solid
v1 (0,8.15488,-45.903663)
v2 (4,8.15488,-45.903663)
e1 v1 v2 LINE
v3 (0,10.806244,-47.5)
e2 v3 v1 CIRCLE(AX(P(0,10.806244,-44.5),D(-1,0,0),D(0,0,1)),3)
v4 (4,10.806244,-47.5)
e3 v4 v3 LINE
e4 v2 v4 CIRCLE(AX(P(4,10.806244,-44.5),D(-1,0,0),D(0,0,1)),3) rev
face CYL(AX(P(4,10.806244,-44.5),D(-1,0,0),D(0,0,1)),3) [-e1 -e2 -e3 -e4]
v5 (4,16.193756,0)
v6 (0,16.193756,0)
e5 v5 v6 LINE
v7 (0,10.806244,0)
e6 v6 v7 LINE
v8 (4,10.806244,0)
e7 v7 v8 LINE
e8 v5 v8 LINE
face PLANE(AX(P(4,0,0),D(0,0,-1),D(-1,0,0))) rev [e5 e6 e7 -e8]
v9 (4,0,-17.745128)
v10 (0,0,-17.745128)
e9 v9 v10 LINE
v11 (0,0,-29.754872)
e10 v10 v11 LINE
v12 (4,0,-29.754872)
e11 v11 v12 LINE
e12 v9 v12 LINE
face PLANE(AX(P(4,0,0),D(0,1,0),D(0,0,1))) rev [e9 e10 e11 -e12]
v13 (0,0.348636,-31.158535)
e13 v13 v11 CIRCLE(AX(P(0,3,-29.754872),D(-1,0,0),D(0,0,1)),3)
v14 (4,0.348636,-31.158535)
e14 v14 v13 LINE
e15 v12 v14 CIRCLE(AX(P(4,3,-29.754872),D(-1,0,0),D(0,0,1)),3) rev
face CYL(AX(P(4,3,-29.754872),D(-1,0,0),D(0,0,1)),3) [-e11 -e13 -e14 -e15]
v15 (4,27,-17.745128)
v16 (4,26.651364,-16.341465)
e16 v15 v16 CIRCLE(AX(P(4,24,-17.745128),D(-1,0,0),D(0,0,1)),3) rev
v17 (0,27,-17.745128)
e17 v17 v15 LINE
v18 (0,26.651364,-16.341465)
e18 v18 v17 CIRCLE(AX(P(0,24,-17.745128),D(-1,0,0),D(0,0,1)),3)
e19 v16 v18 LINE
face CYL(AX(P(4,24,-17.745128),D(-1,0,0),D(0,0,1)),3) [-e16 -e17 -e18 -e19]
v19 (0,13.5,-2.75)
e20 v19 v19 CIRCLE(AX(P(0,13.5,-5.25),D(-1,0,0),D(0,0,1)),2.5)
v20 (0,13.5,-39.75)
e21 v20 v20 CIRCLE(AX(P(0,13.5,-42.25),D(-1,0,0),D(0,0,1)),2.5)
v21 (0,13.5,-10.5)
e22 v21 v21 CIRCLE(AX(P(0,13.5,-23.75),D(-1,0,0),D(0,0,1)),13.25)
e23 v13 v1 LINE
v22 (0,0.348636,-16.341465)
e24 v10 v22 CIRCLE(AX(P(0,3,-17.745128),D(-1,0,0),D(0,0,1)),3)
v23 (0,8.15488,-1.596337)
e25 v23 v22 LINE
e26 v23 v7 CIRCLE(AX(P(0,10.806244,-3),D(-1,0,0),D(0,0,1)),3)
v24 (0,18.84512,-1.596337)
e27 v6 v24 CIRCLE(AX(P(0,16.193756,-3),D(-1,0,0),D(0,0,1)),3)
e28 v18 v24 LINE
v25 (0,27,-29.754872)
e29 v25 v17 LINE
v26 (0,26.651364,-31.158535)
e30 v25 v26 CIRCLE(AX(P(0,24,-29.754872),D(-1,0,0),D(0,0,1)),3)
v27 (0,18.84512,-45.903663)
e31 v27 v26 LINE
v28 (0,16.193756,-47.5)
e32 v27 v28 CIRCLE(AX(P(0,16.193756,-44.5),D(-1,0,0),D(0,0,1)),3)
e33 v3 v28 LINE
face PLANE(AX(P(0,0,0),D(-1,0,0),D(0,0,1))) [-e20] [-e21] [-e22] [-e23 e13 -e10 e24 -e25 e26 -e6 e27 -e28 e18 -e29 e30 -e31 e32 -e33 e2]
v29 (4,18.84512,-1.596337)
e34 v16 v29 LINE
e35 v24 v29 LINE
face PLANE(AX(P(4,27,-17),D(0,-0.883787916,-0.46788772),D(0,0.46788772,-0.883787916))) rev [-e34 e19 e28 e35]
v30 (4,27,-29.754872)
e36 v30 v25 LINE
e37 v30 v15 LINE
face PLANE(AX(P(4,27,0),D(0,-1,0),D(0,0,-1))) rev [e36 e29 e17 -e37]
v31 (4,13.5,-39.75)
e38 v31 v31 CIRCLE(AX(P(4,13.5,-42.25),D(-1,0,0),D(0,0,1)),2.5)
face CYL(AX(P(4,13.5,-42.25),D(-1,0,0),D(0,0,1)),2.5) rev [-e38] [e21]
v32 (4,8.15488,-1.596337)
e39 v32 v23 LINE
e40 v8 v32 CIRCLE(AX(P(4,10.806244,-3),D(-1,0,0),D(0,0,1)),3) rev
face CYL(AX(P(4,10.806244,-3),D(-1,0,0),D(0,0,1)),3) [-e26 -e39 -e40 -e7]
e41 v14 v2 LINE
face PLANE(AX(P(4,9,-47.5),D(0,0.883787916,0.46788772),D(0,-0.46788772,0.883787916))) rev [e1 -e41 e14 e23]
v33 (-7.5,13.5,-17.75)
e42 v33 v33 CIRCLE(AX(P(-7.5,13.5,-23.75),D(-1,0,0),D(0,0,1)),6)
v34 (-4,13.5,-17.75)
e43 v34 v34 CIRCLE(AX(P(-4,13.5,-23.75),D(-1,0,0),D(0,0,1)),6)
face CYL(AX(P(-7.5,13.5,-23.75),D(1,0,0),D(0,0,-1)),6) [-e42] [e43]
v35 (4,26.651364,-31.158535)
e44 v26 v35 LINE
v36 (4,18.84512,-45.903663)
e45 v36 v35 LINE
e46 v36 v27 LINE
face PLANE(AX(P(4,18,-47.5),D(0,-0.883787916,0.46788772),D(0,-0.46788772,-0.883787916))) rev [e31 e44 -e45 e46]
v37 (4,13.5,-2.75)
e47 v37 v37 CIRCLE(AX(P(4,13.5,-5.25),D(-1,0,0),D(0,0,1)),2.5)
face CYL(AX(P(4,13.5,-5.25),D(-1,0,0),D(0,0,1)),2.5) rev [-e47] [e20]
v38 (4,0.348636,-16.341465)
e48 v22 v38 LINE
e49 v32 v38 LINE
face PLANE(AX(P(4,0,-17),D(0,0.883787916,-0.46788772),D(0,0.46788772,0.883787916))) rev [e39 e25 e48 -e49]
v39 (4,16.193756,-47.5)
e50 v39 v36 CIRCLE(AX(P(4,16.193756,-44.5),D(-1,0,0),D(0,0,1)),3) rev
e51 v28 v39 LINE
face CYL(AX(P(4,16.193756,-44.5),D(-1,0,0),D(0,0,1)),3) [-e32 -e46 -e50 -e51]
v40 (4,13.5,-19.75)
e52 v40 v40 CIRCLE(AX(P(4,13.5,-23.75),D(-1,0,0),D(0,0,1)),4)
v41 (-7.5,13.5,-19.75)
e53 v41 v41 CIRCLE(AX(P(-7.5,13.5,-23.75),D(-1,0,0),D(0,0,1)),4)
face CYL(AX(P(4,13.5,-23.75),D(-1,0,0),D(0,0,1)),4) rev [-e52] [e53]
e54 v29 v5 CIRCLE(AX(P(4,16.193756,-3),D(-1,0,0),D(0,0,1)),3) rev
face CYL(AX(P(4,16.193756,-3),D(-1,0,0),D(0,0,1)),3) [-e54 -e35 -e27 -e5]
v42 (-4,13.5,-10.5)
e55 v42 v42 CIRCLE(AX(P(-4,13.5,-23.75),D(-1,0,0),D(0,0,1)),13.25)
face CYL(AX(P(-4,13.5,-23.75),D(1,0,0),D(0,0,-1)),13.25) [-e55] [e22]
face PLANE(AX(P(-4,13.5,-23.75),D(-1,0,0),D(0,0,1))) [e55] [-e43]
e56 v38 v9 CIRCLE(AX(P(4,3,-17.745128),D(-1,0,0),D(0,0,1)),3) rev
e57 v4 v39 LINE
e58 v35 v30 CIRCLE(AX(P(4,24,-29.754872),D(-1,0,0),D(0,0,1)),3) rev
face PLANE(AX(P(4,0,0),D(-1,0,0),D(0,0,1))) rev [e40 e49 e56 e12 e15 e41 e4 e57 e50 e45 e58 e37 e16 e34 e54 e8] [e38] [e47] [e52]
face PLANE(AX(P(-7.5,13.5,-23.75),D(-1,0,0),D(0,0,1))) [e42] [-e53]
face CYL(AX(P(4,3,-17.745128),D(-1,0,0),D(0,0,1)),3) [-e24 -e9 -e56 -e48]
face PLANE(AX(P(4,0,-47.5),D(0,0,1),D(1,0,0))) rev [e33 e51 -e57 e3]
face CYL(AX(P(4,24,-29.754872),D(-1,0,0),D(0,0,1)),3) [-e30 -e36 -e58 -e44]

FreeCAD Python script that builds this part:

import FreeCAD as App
import Part
import Sketcher


def edges_at(feature, points):
    """Names of the edges that pass closest to the given points."""
    edges = feature.Shape.Edges
    near = lambda p: min(range(len(edges)), key=lambda i: edges[i].distToShape(Part.Vertex(*p))[0])
    return sorted({f"Edge{near(p) + 1}" for p in points})

doc = App.newDocument("Part")
params = doc.addObject("Spreadsheet::Sheet", "Params")
for row, (alias, value) in enumerate([
    ("sketch1_width", "27 mm"),
    ("sketch1_height", "47.5 mm"),
    ("pad1_length", "4 mm"),
    ("sketch2_diameter", "26.5 mm"),
    ("pad2_length", "4 mm"),
    ("sketch3_diameter", "12 mm"),
    ("pad3_length", "3.5 mm"),
    ("sketch4_diameter", "8 mm"),
    ("sketch5_diameter", "5 mm"),
    ("sketch6_width", "9 mm"),
    ("sketch6_height", "17 mm"),
    ("fillet_radius", "3 mm"),
], start=1):
    params.set(f"A{row}", alias)
    params.set(f"B{row}", "=" + value)
    params.setAlias(f"B{row}", alias)

body = doc.addObject("PartDesign::Body", "Body")

# Sketch on YZ plane
sketch1 = body.newObject("Sketcher::SketchObject", "Sketch")
sketch1.AttachmentSupport = (doc.getObject("YZ_Plane"), [""])
sketch1.MapMode = "FlatFace"
sketch1.addGeometry(Part.LineSegment(App.Vector(27, 0, 0), App.Vector(0, 0, 0)), False)
sketch1.addGeometry(Part.LineSegment(App.Vector(0, 0, 0), App.Vector(0, -48, 0)), False)
sketch1.addGeometry(Part.LineSegment(App.Vector(0, -48, 0), App.Vector(27, -48, 0)), False)
sketch1.addGeometry(Part.LineSegment(App.Vector(27, -48, 0), App.Vector(27, 0, 0)), False)
sketch1.addConstraint(Sketcher.Constraint("Coincident", 0, 2, 1, 1))
sketch1.addConstraint(Sketcher.Constraint("Coincident", 1, 2, 2, 1))
sketch1.addConstraint(Sketcher.Constraint("Coincident", 2, 2, 3, 1))
sketch1.addConstraint(Sketcher.Constraint("Coincident", 3, 2, 0, 1))
sketch1.addConstraint(Sketcher.Constraint("Horizontal", 0))
sketch1.addConstraint(Sketcher.Constraint("Vertical", 1))
sketch1.addConstraint(Sketcher.Constraint("Horizontal", 2))
sketch1.addConstraint(Sketcher.Constraint("Vertical", 3))
sketch1.addConstraint(Sketcher.Constraint("Coincident", 0, 2, -1, 1))
sketch1.addConstraint(Sketcher.Constraint("DistanceX", 0, 2, 0, 1, 27.0))
sketch1.addConstraint(Sketcher.Constraint("DistanceY", 1, 2, 1, 1, 47.5))
sketch1.setExpression("Constraints[9]", "Params.sketch1_width")
sketch1.setExpression("Constraints[10]", "Params.sketch1_height")
pad1 = body.newObject("PartDesign::Pad", "Pad")
pad1.Profile = sketch1
pad1.setExpression("Length", "Params.pad1_length")

# Sketch on YZ plane
sketch2 = body.newObject("Sketcher::SketchObject", "Sketch001")
sketch2.AttachmentSupport = (doc.getObject("YZ_Plane"), [""])
sketch2.MapMode = "FlatFace"
sketch2.addGeometry(Part.Circle(App.Vector(14, -24, 0), App.Vector(0, 0, 1), 13), False)
sketch2.addConstraint(Sketcher.Constraint("Diameter", 0, 26.5))
sketch2.addConstraint(Sketcher.Constraint("DistanceX", -1, 1, 0, 3, 13.5))
sketch2.addConstraint(Sketcher.Constraint("DistanceY", 0, 3, -1, 1, 23.75))
sketch2.setExpression("Constraints[0]", "Params.sketch2_diameter")
pad2 = body.newObject("PartDesign::Pad", "Pad001")
pad2.Profile = sketch2
pad2.setExpression("Length", "Params.pad2_length")
pad2.Reversed = True

# Sketch on YZ plane
sketch3 = body.newObject("Sketcher::SketchObject", "Sketch002")
sketch3.AttachmentSupport = (doc.getObject("YZ_Plane"), [""])
sketch3.MapMode = "FlatFace"
sketch3.AttachmentOffset = App.Placement(App.Vector(0, 0, -4), App.Rotation())
sketch3.addGeometry(Part.Circle(App.Vector(14, -24, 0), App.Vector(0, 0, 1), 6), False)
sketch3.addConstraint(Sketcher.Constraint("Diameter", 0, 12.0))
sketch3.addConstraint(Sketcher.Constraint("DistanceX", -1, 1, 0, 3, 13.5))
sketch3.addConstraint(Sketcher.Constraint("DistanceY", 0, 3, -1, 1, 23.75))
sketch3.setExpression("Constraints[0]", "Params.sketch3_diameter")
pad3 = body.newObject("PartDesign::Pad", "Pad002")
pad3.Profile = sketch3
pad3.setExpression("Length", "Params.pad3_length")
pad3.Reversed = True

# Sketch on YZ plane
sketch4 = body.newObject("Sketcher::SketchObject", "Sketch003")
sketch4.AttachmentSupport = (doc.getObject("YZ_Plane"), [""])
sketch4.MapMode = "FlatFace"
sketch4.AttachmentOffset = App.Placement(App.Vector(0, 0, -7.5), App.Rotation())
sketch4.addGeometry(Part.Circle(App.Vector(13.5, -23.8, 0), App.Vector(0, 0, 1), 4), False)
sketch4.addConstraint(Sketcher.Constraint("Diameter", 0, 8.0))
sketch4.addConstraint(Sketcher.Constraint("DistanceX", -1, 1, 0, 3, 13.5))
sketch4.addConstraint(Sketcher.Constraint("DistanceY", 0, 3, -1, 1, 23.75))
sketch4.setExpression("Constraints[0]", "Params.sketch4_diameter")
pocket1 = body.newObject("PartDesign::Pocket", "Pocket")
pocket1.Profile = sketch4
pocket1.Type = "ThroughAll"
pocket1.Reversed = True

# Sketch on YZ plane
sketch5 = body.newObject("Sketcher::SketchObject", "Sketch004")
sketch5.AttachmentSupport = (doc.getObject("YZ_Plane"), [""])
sketch5.MapMode = "FlatFace"
sketch5.addGeometry(Part.Circle(App.Vector(13.5, -42.2, 0), App.Vector(0, 0, 1), 2.5), False)
sketch5.addGeometry(Part.Circle(App.Vector(13.5, -5.2, 0), App.Vector(0, 0, 1), 2.5), False)
sketch5.addConstraint(Sketcher.Constraint("Equal", 0, 1))
sketch5.addConstraint(Sketcher.Constraint("Vertical", 0, 3, 1, 3))
sketch5.addConstraint(Sketcher.Constraint("Diameter", 0, 5.0))
sketch5.addConstraint(Sketcher.Constraint("DistanceY", 0, 3, 1, 3, 37.0))
sketch5.addConstraint(Sketcher.Constraint("DistanceX", -1, 1, 0, 3, 13.5))
sketch5.addConstraint(Sketcher.Constraint("DistanceY", 0, 3, -1, 1, 42.25))
sketch5.setExpression("Constraints[2]", "Params.sketch5_diameter")
pocket2 = body.newObject("PartDesign::Pocket", "Pocket001")
pocket2.Profile = sketch5
pocket2.Type = "ThroughAll"
pocket2.Reversed = True

# Sketch on YZ plane
sketch6 = body.newObject("Sketcher::SketchObject", "Sketch005")
sketch6.AttachmentSupport = (doc.getObject("YZ_Plane"), [""])
sketch6.MapMode = "FlatFace"
sketch6.addGeometry(Part.LineSegment(App.Vector(0, -30, 0), App.Vector(9, -48, 0)), False)
sketch6.addGeometry(Part.LineSegment(App.Vector(9, -48, 0), App.Vector(0, -48, 0)), False)
sketch6.addGeometry(Part.LineSegment(App.Vector(0, -48, 0), App.Vector(0, -30, 0)), False)
sketch6.addGeometry(Part.LineSegment(App.Vector(18, -48, 0), App.Vector(27, -30, 0)), False)
sketch6.addGeometry(Part.LineSegment(App.Vector(27, -30, 0), App.Vector(27, -48, 0)), False)
sketch6.addGeometry(Part.LineSegment(App.Vector(27, -48, 0), App.Vector(18, -48, 0)), False)
sketch6.addGeometry(Part.LineSegment(App.Vector(0, -17, 0), App.Vector(0, 0, 0)), False)
sketch6.addGeometry(Part.LineSegment(App.Vector(0, 0, 0), App.Vector(9, 0, 0)), False)
sketch6.addGeometry(Part.LineSegment(App.Vector(9, 0, 0), App.Vector(0, -17, 0)), False)
sketch6.addGeometry(Part.LineSegment(App.Vector(18, 0, 0), App.Vector(27, 0, 0)), False)
sketch6.addGeometry(Part.LineSegment(App.Vector(27, 0, 0), App.Vector(27, -17, 0)), False)
sketch6.addGeometry(Part.LineSegment(App.Vector(27, -17, 0), App.Vector(18, 0, 0)), False)
sketch6.addConstraint(Sketcher.Constraint("Coincident", 0, 2, 1, 1))
sketch6.addConstraint(Sketcher.Constraint("Coincident", 1, 2, 2, 1))
sketch6.addConstraint(Sketcher.Constraint("Coincident", 2, 2, 0, 1))
sketch6.addConstraint(Sketcher.Constraint("Coincident", 3, 2, 4, 1))
sketch6.addConstraint(Sketcher.Constraint("Coincident", 4, 2, 5, 1))
sketch6.addConstraint(Sketcher.Constraint("Coincident", 5, 2, 3, 1))
sketch6.addConstraint(Sketcher.Constraint("Coincident", 6, 2, 7, 1))
sketch6.addConstraint(Sketcher.Constraint("Coincident", 7, 2, 8, 1))
sketch6.addConstraint(Sketcher.Constraint("Coincident", 8, 2, 6, 1))
sketch6.addConstraint(Sketcher.Constraint("Coincident", 9, 2, 10, 1))
sketch6.addConstraint(Sketcher.Constraint("Coincident", 10, 2, 11, 1))
sketch6.addConstraint(Sketcher.Constraint("Coincident", 11, 2, 9, 1))
sketch6.addConstraint(Sketcher.Constraint("Horizontal", 1))
sketch6.addConstraint(Sketcher.Constraint("Vertical", 2))
sketch6.addConstraint(Sketcher.Constraint("Vertical", 4))
sketch6.addConstraint(Sketcher.Constraint("Horizontal", 5))
sketch6.addConstraint(Sketcher.Constraint("Vertical", 6))
sketch6.addConstraint(Sketcher.Constraint("Horizontal", 7))
sketch6.addConstraint(Sketcher.Constraint("Horizontal", 9))
sketch6.addConstraint(Sketcher.Constraint("Vertical", 10))
sketch6.addConstraint(Sketcher.Constraint("Coincident", 6, 2, -1, 1))
sketch6.addConstraint(Sketcher.Constraint("PointOnObject", 1, 2, -2))
sketch6.addConstraint(Sketcher.Constraint("PointOnObject", 9, 2, -1))
sketch6.addConstraint(Sketcher.Constraint("Parallel", 3, 8))
sketch6.addConstraint(Sketcher.Constraint("Parallel", 0, 11))
sketch6.addConstraint(Sketcher.Constraint("Horizontal", 2, 2, 3, 2))
sketch6.addConstraint(Sketcher.Constraint("Horizontal", 1, 2, 4, 2))
sketch6.addConstraint(Sketcher.Constraint("Horizontal", 8, 2, 10, 2))
sketch6.addConstraint(Sketcher.Constraint("Vertical", 0, 2, 7, 2))
sketch6.addConstraint(Sketcher.Constraint("Vertical", 4, 2, 9, 2))
sketch6.addConstraint(Sketcher.Constraint("Vertical", 5, 2, 11, 2))
sketch6.addConstraint(Sketcher.Constraint("DistanceX", 1, 2, 1, 1, 9.0))
sketch6.addConstraint(Sketcher.Constraint("DistanceY", 2, 1, 2, 2, 17.0))
sketch6.addConstraint(Sketcher.Constraint("DistanceX", -1, 1, 3, 2, 27.0))
sketch6.addConstraint(Sketcher.Constraint("DistanceY", 0, 2, -1, 1, 47.5))
sketch6.setExpression("Constraints[31]", "Params.sketch6_width")
sketch6.setExpression("Constraints[32]", "Params.sketch6_height")
pocket3 = body.newObject("PartDesign::Pocket", "Pocket002")
pocket3.Profile = sketch6
pocket3.Type = "ThroughAll"
pocket3.Reversed = True
doc.recompute()

fillet = body.newObject("PartDesign::Fillet", "Fillet")
fillet.Base = (pocket3, edges_at(pocket3, [
    (2, 9, -47.5),
    (2, 0, -30.5),
    (2, 18, -47.5),
    (2, 27, -30.5),
    (2, 9, 0),
    (2, 0, -17),
    (2, 18, 0),
    (2, 27, -17),
]))
fillet.setExpression("Radius", "Params.fillet_radius")

doc.recompute()
